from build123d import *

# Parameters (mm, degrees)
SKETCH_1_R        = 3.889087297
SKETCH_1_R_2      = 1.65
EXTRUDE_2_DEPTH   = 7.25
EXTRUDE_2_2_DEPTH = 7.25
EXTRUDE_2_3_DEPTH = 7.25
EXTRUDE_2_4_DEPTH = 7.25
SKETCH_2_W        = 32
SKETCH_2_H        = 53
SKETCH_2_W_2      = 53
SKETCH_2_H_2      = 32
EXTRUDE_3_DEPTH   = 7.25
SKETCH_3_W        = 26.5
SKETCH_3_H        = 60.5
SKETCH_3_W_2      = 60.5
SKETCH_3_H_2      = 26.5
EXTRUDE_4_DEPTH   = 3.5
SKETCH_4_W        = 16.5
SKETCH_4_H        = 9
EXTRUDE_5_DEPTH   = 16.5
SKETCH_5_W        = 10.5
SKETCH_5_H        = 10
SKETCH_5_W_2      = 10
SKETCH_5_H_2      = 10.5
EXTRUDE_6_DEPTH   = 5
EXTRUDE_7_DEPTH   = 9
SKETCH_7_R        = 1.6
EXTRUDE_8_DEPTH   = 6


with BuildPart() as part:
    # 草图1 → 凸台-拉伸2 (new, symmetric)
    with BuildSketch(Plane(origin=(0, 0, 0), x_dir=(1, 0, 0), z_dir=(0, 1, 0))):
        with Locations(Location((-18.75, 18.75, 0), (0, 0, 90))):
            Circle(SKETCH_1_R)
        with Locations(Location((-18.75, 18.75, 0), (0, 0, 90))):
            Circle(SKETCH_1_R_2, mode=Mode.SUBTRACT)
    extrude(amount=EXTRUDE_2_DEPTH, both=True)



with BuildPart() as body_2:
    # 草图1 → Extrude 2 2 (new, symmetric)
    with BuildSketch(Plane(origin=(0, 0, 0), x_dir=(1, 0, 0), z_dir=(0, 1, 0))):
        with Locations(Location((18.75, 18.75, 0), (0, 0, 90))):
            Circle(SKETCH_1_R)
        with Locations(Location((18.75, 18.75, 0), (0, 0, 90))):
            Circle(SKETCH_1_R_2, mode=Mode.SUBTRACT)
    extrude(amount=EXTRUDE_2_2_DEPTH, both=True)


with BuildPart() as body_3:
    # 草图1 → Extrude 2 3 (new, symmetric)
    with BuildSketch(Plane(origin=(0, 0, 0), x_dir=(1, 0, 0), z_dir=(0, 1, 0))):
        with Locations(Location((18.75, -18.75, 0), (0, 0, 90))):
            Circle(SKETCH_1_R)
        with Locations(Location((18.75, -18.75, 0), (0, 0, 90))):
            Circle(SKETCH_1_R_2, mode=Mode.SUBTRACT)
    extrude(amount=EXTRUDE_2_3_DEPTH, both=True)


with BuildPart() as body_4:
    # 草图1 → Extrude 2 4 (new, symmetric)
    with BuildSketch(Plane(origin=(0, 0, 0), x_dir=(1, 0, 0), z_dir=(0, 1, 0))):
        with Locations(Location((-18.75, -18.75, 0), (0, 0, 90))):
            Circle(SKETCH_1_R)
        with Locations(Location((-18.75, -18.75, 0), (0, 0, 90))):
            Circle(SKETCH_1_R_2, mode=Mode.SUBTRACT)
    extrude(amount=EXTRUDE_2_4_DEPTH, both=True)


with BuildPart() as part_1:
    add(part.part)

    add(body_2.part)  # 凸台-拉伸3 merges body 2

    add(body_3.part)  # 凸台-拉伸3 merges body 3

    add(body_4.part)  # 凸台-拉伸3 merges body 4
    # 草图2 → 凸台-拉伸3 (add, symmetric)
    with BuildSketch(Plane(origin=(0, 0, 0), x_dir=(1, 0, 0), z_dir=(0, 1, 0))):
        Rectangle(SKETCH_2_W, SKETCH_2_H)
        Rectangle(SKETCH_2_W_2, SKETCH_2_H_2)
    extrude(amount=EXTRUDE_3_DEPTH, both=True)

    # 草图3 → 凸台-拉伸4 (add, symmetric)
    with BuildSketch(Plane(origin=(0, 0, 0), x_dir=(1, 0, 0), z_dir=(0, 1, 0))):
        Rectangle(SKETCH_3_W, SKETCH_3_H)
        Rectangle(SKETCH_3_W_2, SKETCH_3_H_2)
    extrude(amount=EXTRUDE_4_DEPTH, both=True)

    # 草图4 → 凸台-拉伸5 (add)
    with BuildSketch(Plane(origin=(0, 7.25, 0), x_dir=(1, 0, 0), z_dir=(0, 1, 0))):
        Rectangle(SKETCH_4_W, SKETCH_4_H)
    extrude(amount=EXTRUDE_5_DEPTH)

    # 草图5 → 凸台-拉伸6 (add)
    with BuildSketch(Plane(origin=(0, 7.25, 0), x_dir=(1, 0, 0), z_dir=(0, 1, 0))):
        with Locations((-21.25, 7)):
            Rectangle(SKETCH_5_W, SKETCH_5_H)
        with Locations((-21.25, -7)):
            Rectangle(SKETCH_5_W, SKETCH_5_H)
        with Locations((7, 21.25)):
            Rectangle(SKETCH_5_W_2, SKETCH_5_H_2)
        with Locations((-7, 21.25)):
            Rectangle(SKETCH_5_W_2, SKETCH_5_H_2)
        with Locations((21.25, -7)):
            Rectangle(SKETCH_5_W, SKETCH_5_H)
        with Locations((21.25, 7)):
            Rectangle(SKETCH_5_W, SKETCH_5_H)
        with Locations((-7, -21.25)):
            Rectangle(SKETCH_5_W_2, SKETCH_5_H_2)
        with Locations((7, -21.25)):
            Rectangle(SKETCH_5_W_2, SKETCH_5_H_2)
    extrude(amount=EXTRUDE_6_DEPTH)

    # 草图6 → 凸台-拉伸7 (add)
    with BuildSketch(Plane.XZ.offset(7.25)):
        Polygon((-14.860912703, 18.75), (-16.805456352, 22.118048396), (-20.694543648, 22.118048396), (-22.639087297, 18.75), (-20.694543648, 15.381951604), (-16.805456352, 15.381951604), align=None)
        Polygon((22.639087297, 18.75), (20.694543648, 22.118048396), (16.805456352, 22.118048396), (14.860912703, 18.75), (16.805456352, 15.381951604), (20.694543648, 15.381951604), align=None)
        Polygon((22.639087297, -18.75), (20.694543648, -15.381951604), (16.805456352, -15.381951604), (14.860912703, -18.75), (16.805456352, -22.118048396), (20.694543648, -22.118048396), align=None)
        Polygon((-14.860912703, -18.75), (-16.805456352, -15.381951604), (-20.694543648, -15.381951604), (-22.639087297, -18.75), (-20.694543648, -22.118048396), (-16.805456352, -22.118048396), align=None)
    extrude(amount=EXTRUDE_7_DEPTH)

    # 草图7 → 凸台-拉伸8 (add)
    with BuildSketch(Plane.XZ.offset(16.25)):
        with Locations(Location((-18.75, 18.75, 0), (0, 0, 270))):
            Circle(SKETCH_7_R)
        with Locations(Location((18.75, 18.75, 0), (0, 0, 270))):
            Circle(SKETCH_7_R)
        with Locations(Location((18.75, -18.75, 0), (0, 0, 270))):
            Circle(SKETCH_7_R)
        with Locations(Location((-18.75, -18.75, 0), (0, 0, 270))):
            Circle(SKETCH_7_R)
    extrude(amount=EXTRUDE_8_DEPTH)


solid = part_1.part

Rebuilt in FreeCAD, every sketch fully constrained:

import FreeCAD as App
import Part
import Sketcher
from FreeCAD import Vector
Q = App.Units.Quantity


def add_polygon(sketch, points):
    """Adds a closed chain of lines whose ends are joined by coincident constraints."""
    first, n = sketch.GeometryCount, len(points)
    for a, b in zip(points, points[1:] + points[:1]):
        sketch.addGeometry(Part.LineSegment(App.Vector(*a, 0), App.Vector(*b, 0)), False)
    for i in range(n):
        sketch.addConstraint(Sketcher.Constraint("Coincident", first + i, 2, first + (i + 1) % n, 1))

doc = App.newDocument("Part")
body = doc.addObject("PartDesign::Body", "Body")

# Sketch on XZ plane
sketch1 = body.newObject("Sketcher::SketchObject", "Sketch")
sketch1.AttachmentSupport = (doc.getObject("XZ_Plane"), [""])
sketch1.MapMode = "FlatFace"
sketch1.addGeometry(Part.Circle(Vector(-18.8, -18.8, 0), Vector(0, 0, 1), 3.9), False)
sketch1.addGeometry(Part.Circle(Vector(-18.8, -18.8, 0), Vector(0, 0, 1), 1.6), False)
sketch1.addConstraint(Sketcher.Constraint("Coincident", 1, 3, 0, 3))
sketch1.addConstraint(Sketcher.Constraint("Diameter", 1, 3.3))
sketch1.addConstraint(Sketcher.Constraint("DistanceX", 0, 3, -1, 1, 18.75))
sketch1.addConstraint(Sketcher.Constraint("DistanceY", 0, 3, -1, 1, 18.75))
sketch1.addConstraint(Sketcher.Constraint("Diameter", 0, 7.778175))
pad1 = body.newObject("PartDesign::Pad", "Pad")
pad1.Profile = sketch1
pad1.Length = 14.5
pad1.Midplane = True
body2 = doc.addObject("PartDesign::Body", "Body001")

# Sketch on XZ plane
sketch2 = body2.newObject("Sketcher::SketchObject", "Sketch001")
sketch2.AttachmentSupport = (doc.getObject("XZ_Plane001"), [""])
sketch2.MapMode = "FlatFace"
sketch2.addGeometry(Part.Circle(Vector(18.8, -18.8, 0), Vector(0, 0, 1), 3.9), False)
sketch2.addGeometry(Part.Circle(Vector(18.8, -18.8, 0), Vector(0, 0, 1), 1.6), False)
sketch2.addConstraint(Sketcher.Constraint("Coincident", 1, 3, 0, 3))
sketch2.addConstraint(Sketcher.Constraint("Diameter", 1, 3.3))
sketch2.addConstraint(Sketcher.Constraint("DistanceX", -1, 1, 0, 3, 18.75))
sketch2.addConstraint(Sketcher.Constraint("DistanceY", 0, 3, -1, 1, 18.75))
sketch2.addConstraint(Sketcher.Constraint("Diameter", 0, 7.778175))
pad2 = body2.newObject("PartDesign::Pad", "Pad001")
pad2.Profile = sketch2
pad2.Length = 14.5
pad2.Midplane = True
body3 = doc.addObject("PartDesign::Body", "Body002")

# Sketch on XZ plane
sketch3 = body3.newObject("Sketcher::SketchObject", "Sketch002")
sketch3.AttachmentSupport = (doc.getObject("XZ_Plane002"), [""])
sketch3.MapMode = "FlatFace"
sketch3.addGeometry(Part.Circle(Vector(18.8, 18.8, 0), Vector(0, 0, 1), 3.9), False)
sketch3.addGeometry(Part.Circle(Vector(18.8, 18.8, 0), Vector(0, 0, 1), 1.6), False)
sketch3.addConstraint(Sketcher.Constraint("Coincident", 1, 3, 0, 3))
sketch3.addConstraint(Sketcher.Constraint("Diameter", 1, 3.3))
sketch3.addConstraint(Sketcher.Constraint("DistanceX", -1, 1, 0, 3, 18.75))
sketch3.addConstraint(Sketcher.Constraint("DistanceY", -1, 1, 0, 3, 18.75))
sketch3.addConstraint(Sketcher.Constraint("Diameter", 0, 7.778175))
pad3 = body3.newObject("PartDesign::Pad", "Pad002")
pad3.Profile = sketch3
pad3.Length = 14.5
pad3.Midplane = True
body4 = doc.addObject("PartDesign::Body", "Body003")

# Sketch on XZ plane
sketch4 = body4.newObject("Sketcher::SketchObject", "Sketch003")
sketch4.AttachmentSupport = (doc.getObject("XZ_Plane003"), [""])
sketch4.MapMode = "FlatFace"
sketch4.addGeometry(Part.Circle(Vector(-18.8, 18.8, 0), Vector(0, 0, 1), 3.9), False)
sketch4.addGeometry(Part.Circle(Vector(-18.8, 18.8, 0), Vector(0, 0, 1), 1.6), False)
sketch4.addConstraint(Sketcher.Constraint("Coincident", 1, 3, 0, 3))
sketch4.addConstraint(Sketcher.Constraint("Diameter", 1, 3.3))
sketch4.addConstraint(Sketcher.Constraint("DistanceX", 0, 3, -1, 1, 18.75))
sketch4.addConstraint(Sketcher.Constraint("DistanceY", -1, 1, 0, 3, 18.75))
sketch4.addConstraint(Sketcher.Constraint("Diameter", 0, 7.778175))
pad4 = body4.newObject("PartDesign::Pad", "Pad003")
pad4.Profile = sketch4
pad4.Length = 14.5
pad4.Midplane = True
body.AllowCompound = True
doc.recompute()

boolean = body.newObject("PartDesign::Boolean", "Boolean")
boolean.Type = "Fuse"
boolean.addObjects([body2])
doc.recompute()

boolean2 = body.newObject("PartDesign::Boolean", "Boolean001")
boolean2.Type = "Fuse"
boolean2.addObjects([body3])
doc.recompute()

boolean3 = body.newObject("PartDesign::Boolean", "Boolean002")
boolean3.Type = "Fuse"
boolean3.addObjects([body4])

# Sketch on XZ plane
sketch5 = body.newObject("Sketcher::SketchObject", "Sketch004")
sketch5.AttachmentSupport = (doc.getObject("XZ_Plane"), [""])
sketch5.MapMode = "FlatFace"
add_polygon(sketch5, [(-16, 16), (-16, 26), (16, 26), (16, 16), (26, 16), (26, -16), (16, -16), (16, -26), (-16, -26), (-16, -16), (-26, -16), (-26, 16)])  # lines 0-11
sketch5.addConstraint(Sketcher.Constraint("Vertical", 0))
sketch5.addConstraint(Sketcher.Constraint("Horizontal", 1))
sketch5.addConstraint(Sketcher.Constraint("Vertical", 2))
sketch5.addConstraint(Sketcher.Constraint("Horizontal", 3))
sketch5.addConstraint(Sketcher.Constraint("Vertical", 4))
sketch5.addConstraint(Sketcher.Constraint("Horizontal", 5))
sketch5.addConstraint(Sketcher.Constraint("Vertical", 6))
sketch5.addConstraint(Sketcher.Constraint("Horizontal", 7))
sketch5.addConstraint(Sketcher.Constraint("Vertical", 8))
sketch5.addConstraint(Sketcher.Constraint("Horizontal", 9))
sketch5.addConstraint(Sketcher.Constraint("Vertical", 10))
sketch5.addConstraint(Sketcher.Constraint("Horizontal", 11))
sketch5.addConstraint(Sketcher.Constraint("Symmetric", 0, 2, 6, 2, -1, 1))
sketch5.addConstraint(Sketcher.Constraint("Symmetric", 2, 2, 8, 2, -1, 1))
sketch5.addConstraint(Sketcher.Constraint("Symmetric", 4, 2, 10, 2, -1, 1))
sketch5.addConstraint(Sketcher.Constraint("Symmetric", 5, 2, 8, 2, -2))
sketch5.addConstraint(Sketcher.Constraint("Equal", 11, 0))
sketch5.addConstraint(Sketcher.Constraint("Equal", 7, 4))
sketch5.addConstraint(Sketcher.Constraint("DistanceX", 1, 1, 1, 2, 32.0))
sketch5.addConstraint(Sketcher.Constraint("DistanceX", 3, 1, 3, 2, 10.5))
pad5 = body.newObject("PartDesign::Pad", "Pad004")
pad5.Profile = sketch5
pad5.Length = 14.5
pad5.Midplane = True

# Sketch on XZ plane
sketch6 = body.newObject("Sketcher::SketchObject", "Sketch005")
sketch6.AttachmentSupport = (doc.getObject("XZ_Plane"), [""])
sketch6.MapMode = "FlatFace"
add_polygon(sketch6, [(-13, 13), (-13, 30), (13, 30), (13, 13), (30, 13), (30, -13), (13, -13), (13, -30), (-13, -30), (-13, -13), (-30, -13), (-30, 13)])  # lines 0-11
sketch6.addConstraint(Sketcher.Constraint("Vertical", 0))
sketch6.addConstraint(Sketcher.Constraint("Horizontal", 1))
sketch6.addConstraint(Sketcher.Constraint("Vertical", 2))
sketch6.addConstraint(Sketcher.Constraint("Horizontal", 3))
sketch6.addConstraint(Sketcher.Constraint("Vertical", 4))
sketch6.addConstraint(Sketcher.Constraint("Horizontal", 5))
sketch6.addConstraint(Sketcher.Constraint("Vertical", 6))
sketch6.addConstraint(Sketcher.Constraint("Horizontal", 7))
sketch6.addConstraint(Sketcher.Constraint("Vertical", 8))
sketch6.addConstraint(Sketcher.Constraint("Horizontal", 9))
sketch6.addConstraint(Sketcher.Constraint("Vertical", 10))
sketch6.addConstraint(Sketcher.Constraint("Horizontal", 11))
sketch6.addConstraint(Sketcher.Constraint("Symmetric", 0, 2, 6, 2, -1, 1))
sketch6.addConstraint(Sketcher.Constraint("Symmetric", 2, 2, 8, 2, -1, 1))
sketch6.addConstraint(Sketcher.Constraint("Symmetric", 4, 2, 10, 2, -1, 1))
sketch6.addConstraint(Sketcher.Constraint("Symmetric", 5, 2, 8, 2, -2))
sketch6.addConstraint(Sketcher.Constraint("Equal", 11, 0))
sketch6.addConstraint(Sketcher.Constraint("Equal", 7, 4))
sketch6.addConstraint(Sketcher.Constraint("DistanceX", 3, 1, 3, 2, 17.0))
sketch6.addConstraint(Sketcher.Constraint("DistanceX", 1, 1, 1, 2, 26.5))
pad6 = body.newObject("PartDesign::Pad", "Pad005")
pad6.Profile = sketch6
pad6.Length = 7
pad6.Midplane = True

# Sketch on XZ plane
sketch7 = body.newObject("Sketcher::SketchObject", "Sketch006")
sketch7.AttachmentSupport = (doc.getObject("XZ_Plane"), [""])
sketch7.MapMode = "FlatFace"
sketch7.AttachmentOffset = App.Placement(Vector(0, 0, -7.25), App.Rotation())
add_polygon(sketch7, [(-8, -4), (-8, 4), (8, 4), (8, -4)])  # lines 0-3
sketch7.addConstraint(Sketcher.Constraint("Vertical", 0))
sketch7.addConstraint(Sketcher.Constraint("Horizontal", 1))
sketch7.addConstraint(Sketcher.Constraint("Vertical", 2))
sketch7.addConstraint(Sketcher.Constraint("Horizontal", 3))
sketch7.addConstraint(Sketcher.Constraint("Symmetric", 0, 2, 2, 2, -1, 1))
sketch7.addConstraint(Sketcher.Constraint("DistanceY", 0, 1, 0, 2, 9.0))
sketch7.addConstraint(Sketcher.Constraint("DistanceX", 1, 1, 1, 2, 16.5))
pad7 = body.newObject("PartDesign::Pad", "Pad006")
pad7.Profile = sketch7
pad7.Length = 16.5
pad7.Reversed = True

# Sketch on XZ plane
sketch8 = body.newObject("Sketcher::SketchObject", "Sketch007")
sketch8.AttachmentSupport = (doc.getObject("XZ_Plane"), [""])
sketch8.MapMode = "FlatFace"
sketch8.AttachmentOffset = App.Placement(Vector(0, 0, -7.25), App.Rotation())
add_polygon(sketch8, [(-26, -12), (-26, -2), (-16, -2), (-16, -12)])  # lines 0-3
add_polygon(sketch8, [(-26, 2), (-26, 12), (-16, 12), (-16, 2)])  # lines 4-7
add_polygon(sketch8, [(2, -26), (2, -16), (12, -16), (12, -26)])  # lines 8-11
add_polygon(sketch8, [(-12, -26), (-12, -16), (-2, -16), (-2, -26)])  # lines 12-15
add_polygon(sketch8, [(16, 2), (16, 12), (26, 12), (26, 2)])  # lines 16-19
add_polygon(sketch8, [(16, -12), (16, -2), (26, -2), (26, -12)])  # lines 20-23
add_polygon(sketch8, [(-12, 16), (-12, 26), (-2, 26), (-2, 16)])  # lines 24-27
add_polygon(sketch8, [(2, 16), (2, 26), (12, 26), (12, 16)])  # lines 28-31
sketch8.addConstraint(Sketcher.Constraint("Vertical", 0))
sketch8.addConstraint(Sketcher.Constraint("Horizontal", 1))
sketch8.addConstraint(Sketcher.Constraint("Vertical", 2))
sketch8.addConstraint(Sketcher.Constraint("Horizontal", 3))
sketch8.addConstraint(Sketcher.Constraint("Vertical", 4))
sketch8.addConstraint(Sketcher.Constraint("Horizontal", 5))
sketch8.addConstraint(Sketcher.Constraint("Vertical", 6))
sketch8.addConstraint(Sketcher.Constraint("Horizontal", 7))
sketch8.addConstraint(Sketcher.Constraint("Vertical", 8))
sketch8.addConstraint(Sketcher.Constraint("Horizontal", 9))
sketch8.addConstraint(Sketcher.Constraint("Vertical", 10))
sketch8.addConstraint(Sketcher.Constraint("Horizontal", 11))
sketch8.addConstraint(Sketcher.Constraint("Vertical", 12))
sketch8.addConstraint(Sketcher.Constraint("Horizontal", 13))
sketch8.addConstraint(Sketcher.Constraint("Vertical", 14))
sketch8.addConstraint(Sketcher.Constraint("Horizontal", 15))
sketch8.addConstraint(Sketcher.Constraint("Vertical", 16))
sketch8.addConstraint(Sketcher.Constraint("Horizontal", 17))
sketch8.addConstraint(Sketcher.Constraint("Vertical", 18))
sketch8.addConstraint(Sketcher.Constraint("Horizontal", 19))
sketch8.addConstraint(Sketcher.Constraint("Vertical", 20))
sketch8.addConstraint(Sketcher.Constraint("Horizontal", 21))
sketch8.addConstraint(Sketcher.Constraint("Vertical", 22))
sketch8.addConstraint(Sketcher.Constraint("Horizontal", 23))
sketch8.addConstraint(Sketcher.Constraint("Vertical", 24))
sketch8.addConstraint(Sketcher.Constraint("Horizontal", 25))
sketch8.addConstraint(Sketcher.Constraint("Vertical", 26))
sketch8.addConstraint(Sketcher.Constraint("Horizontal", 27))
sketch8.addConstraint(Sketcher.Constraint("Vertical", 28))
sketch8.addConstraint(Sketcher.Constraint("Horizontal", 29))
sketch8.addConstraint(Sketcher.Constraint("Vertical", 30))
sketch8.addConstraint(Sketcher.Constraint("Horizontal", 31))
sketch8.addConstraint(Sketcher.Constraint("Symmetric", 2, 2, 16, 2, -1, 1))
sketch8.addConstraint(Sketcher.Constraint("Symmetric", 0, 2, 18, 2, -1, 1))
sketch8.addConstraint(Sketcher.Constraint("Symmetric", 6, 2, 20, 2, -1, 1))
sketch8.addConstraint(Sketcher.Constraint("Symmetric", 4, 2, 22, 2, -1, 1))
sketch8.addConstraint(Sketcher.Constraint("Symmetric", 10, 2, 24, 2, -1, 1))
sketch8.addConstraint(Sketcher.Constraint("Symmetric", 8, 2, 26, 2, -1, 1))
sketch8.addConstraint(Sketcher.Constraint("Symmetric", 14, 2, 28, 2, -1, 1))
sketch8.addConstraint(Sketcher.Constraint("Symmetric", 12, 2, 30, 2, -1, 1))
sketch8.addConstraint(Sketcher.Constraint("Symmetric", 9, 2, 12, 2, -2))
sketch8.addConstraint(Sketcher.Constraint("Symmetric", 11, 2, 14, 2, -2))
sketch8.addConstraint(Sketcher.Constraint("Symmetric", 5, 2, 16, 2, -2))
sketch8.addConstraint(Sketcher.Constraint("Symmetric", 7, 2, 18, 2, -2))
sketch8.addConstraint(Sketcher.Constraint("Equal", 31, 0))
sketch8.addConstraint(Sketcher.Constraint("Equal", 23, 8))
sketch8.addConstraint(Sketcher.Constraint("DistanceX", 9, 1, 9, 2, 10.0))
sketch8.addConstraint(Sketcher.Constraint("DistanceX", 1, 1, 1, 2, 10.5))
sketch8.addConstraint(Sketcher.Constraint("DistanceY", 0, 2, -1, 1, 2.0))
sketch8.addConstraint(Sketcher.Constraint("DistanceX", 1, 2, -1, 1, 16.0))
sketch8.addConstraint(Sketcher.Constraint("DistanceX", -1, 1, 8, 2, 2.0))
sketch8.addConstraint(Sketcher.Constraint("DistanceY", 8, 2, -1, 1, 16.0))
pad8 = body.newObject("PartDesign::Pad", "Pad007")
pad8.Profile = sketch8
pad8.Length = 5
pad8.Reversed = True

# Sketch on XZ plane
sketch9 = body.newObject("Sketcher::SketchObject", "Sketch008")
sketch9.AttachmentSupport = (doc.getObject("XZ_Plane"), [""])
sketch9.MapMode = "FlatFace"
sketch9.AttachmentOffset = App.Placement(Vector(0, 0, 7.25), App.Rotation())
add_polygon(sketch9, [(-14.9, 18.8), (-16.8, 22.1), (-20.7, 22.1), (-22.6, 18.8), (-20.7, 15.4), (-16.8, 15.4)])  # lines 0-5
add_polygon(sketch9, [(22.6, 18.8), (20.7, 22.1), (16.8, 22.1), (14.9, 18.8), (16.8, 15.4), (20.7, 15.4)])  # lines 6-11
add_polygon(sketch9, [(22.6, -18.8), (20.7, -15.4), (16.8, -15.4), (14.9, -18.8), (16.8, -22.1), (20.7, -22.1)])  # lines 12-17
add_polygon(sketch9, [(-14.9, -18.8), (-16.8, -15.4), (-20.7, -15.4), (-22.6, -18.8), (-20.7, -22.1), (-16.8, -22.1)])  # lines 18-23
sketch9.addConstraint(Sketcher.Constraint("Horizontal", 1))
sketch9.addConstraint(Sketcher.Constraint("Horizontal", 4))
sketch9.addConstraint(Sketcher.Constraint("Horizontal", 7))
sketch9.addConstraint(Sketcher.Constraint("Horizontal", 10))
sketch9.addConstraint(Sketcher.Constraint("Horizontal", 13))
sketch9.addConstraint(Sketcher.Constraint("Horizontal", 16))
sketch9.addConstraint(Sketcher.Constraint("Horizontal", 19))
sketch9.addConstraint(Sketcher.Constraint("Horizontal", 22))
sketch9.addConstraint(Sketcher.Constraint("Symmetric", 3, 2, 12, 2, -1, 1))
sketch9.addConstraint(Sketcher.Constraint("Symmetric", 5, 2, 14, 2, -1, 1))
sketch9.addConstraint(Sketcher.Constraint("Symmetric", 0, 2, 15, 2, -1, 1))
sketch9.addConstraint(Sketcher.Constraint("Symmetric", 2, 2, 17, 2, -1, 1))
sketch9.addConstraint(Sketcher.Constraint("Symmetric", 9, 2, 18, 2, -1, 1))
sketch9.addConstraint(Sketcher.Constraint("Symmetric", 11, 2, 20, 2, -1, 1))
sketch9.addConstraint(Sketcher.Constraint("Symmetric", 6, 2, 21, 2, -1, 1))
sketch9.addConstraint(Sketcher.Constraint("Symmetric", 8, 2, 23, 2, -1, 1))
sketch9.addConstraint(Sketcher.Constraint("Symmetric", 1, 2, 6, 2, -2))
sketch9.addConstraint(Sketcher.Constraint("Symmetric", 5, 2, 8, 2, -2))
sketch9.addConstraint(Sketcher.Constraint("Symmetric", 4, 2, 9, 2, -2))
sketch9.addConstraint(Sketcher.Constraint("Symmetric", 2, 2, 11, 2, -2))
sketch9.addConstraint(Sketcher.Constraint("Parallel", 0, 3))
sketch9.addConstraint(Sketcher.Constraint("Parallel", 2, 5))
sketch9.addConstraint(Sketcher.Constraint("Parallel", 3, 6))
sketch9.addConstraint(Sketcher.Constraint("Parallel", 5, 8))
sketch9.addConstraint(Sketcher.Constraint("Parallel", 8, 11))
sketch9.addConstraint(Sketcher.Constraint("Parallel", 11, 14))
sketch9.addConstraint(Sketcher.Constraint("Parallel", 14, 17))
sketch9.addConstraint(Sketcher.Constraint("Parallel", 17, 20))
sketch9.addConstraint(Sketcher.Constraint("Parallel", 20, 23))
sketch9.addConstraint(Sketcher.Constraint("Horizontal", 2, 2, 5, 2))
sketch9.addConstraint(Sketcher.Constraint("Vertical", 1, 2, 3, 2))
sketch9.addConstraint(Sketcher.Constraint("Angle", 0, Q("120 deg")))
sketch9.addConstraint(Sketcher.Constraint("DistanceX", 0, 2, 6, 2, 37.5))
sketch9.addConstraint(Sketcher.Constraint("DistanceY", 12, 2, 6, 2, 37.5))
sketch9.addConstraint(Sketcher.Constraint("DistanceX", 1, 2, 1, 1, 3.889087))
sketch9.addConstraint(Sketcher.Constraint("DistanceY", -1, 1, 0, 2, 22.118048))
pad9 = body.newObject("PartDesign::Pad", "Pad008")
pad9.Profile = sketch9
pad9.Length = 9

# Sketch on XZ plane
sketch10 = body.newObject("Sketcher::SketchObject", "Sketch009")
sketch10.AttachmentSupport = (doc.getObject("XZ_Plane"), [""])
sketch10.MapMode = "FlatFace"
sketch10.AttachmentOffset = App.Placement(Vector(0, 0, 16.25), App.Rotation())
sketch10.addGeometry(Part.Circle(Vector(-18.8, 18.8, 0), Vector(0, 0, 1), 1.6), False)
sketch10.addGeometry(Part.Circle(Vector(18.8, 18.8, 0), Vector(0, 0, 1), 1.6), False)
sketch10.addGeometry(Part.Circle(Vector(18.8, -18.8, 0), Vector(0, 0, 1), 1.6), False)
sketch10.addGeometry(Part.Circle(Vector(-18.8, -18.8, 0), Vector(0, 0, 1), 1.6), False)
sketch10.addConstraint(Sketcher.Constraint("Equal", 0, 1))
sketch10.addConstraint(Sketcher.Constraint("Equal", 1, 2))
sketch10.addConstraint(Sketcher.Constraint("Equal", 2, 3))
sketch10.addConstraint(Sketcher.Constraint("Symmetric", 0, 3, 2, 3, -1, 1))
sketch10.addConstraint(Sketcher.Constraint("Symmetric", 1, 3, 3, 3, -1, 1))
sketch10.addConstraint(Sketcher.Constraint("Symmetric", 0, 3, 1, 3, -2))
sketch10.addConstraint(Sketcher.Constraint("Diameter", 0, 3.2))
sketch10.addConstraint(Sketcher.Constraint("DistanceX", 0, 3, 1, 3, 37.5))
sketch10.addConstraint(Sketcher.Constraint("DistanceY", 2, 3, 1, 3, 37.5))
pad10 = body.newObject("PartDesign::Pad", "Pad009")
pad10.Profile = sketch10
pad10.Length = 6

doc.recompute()
